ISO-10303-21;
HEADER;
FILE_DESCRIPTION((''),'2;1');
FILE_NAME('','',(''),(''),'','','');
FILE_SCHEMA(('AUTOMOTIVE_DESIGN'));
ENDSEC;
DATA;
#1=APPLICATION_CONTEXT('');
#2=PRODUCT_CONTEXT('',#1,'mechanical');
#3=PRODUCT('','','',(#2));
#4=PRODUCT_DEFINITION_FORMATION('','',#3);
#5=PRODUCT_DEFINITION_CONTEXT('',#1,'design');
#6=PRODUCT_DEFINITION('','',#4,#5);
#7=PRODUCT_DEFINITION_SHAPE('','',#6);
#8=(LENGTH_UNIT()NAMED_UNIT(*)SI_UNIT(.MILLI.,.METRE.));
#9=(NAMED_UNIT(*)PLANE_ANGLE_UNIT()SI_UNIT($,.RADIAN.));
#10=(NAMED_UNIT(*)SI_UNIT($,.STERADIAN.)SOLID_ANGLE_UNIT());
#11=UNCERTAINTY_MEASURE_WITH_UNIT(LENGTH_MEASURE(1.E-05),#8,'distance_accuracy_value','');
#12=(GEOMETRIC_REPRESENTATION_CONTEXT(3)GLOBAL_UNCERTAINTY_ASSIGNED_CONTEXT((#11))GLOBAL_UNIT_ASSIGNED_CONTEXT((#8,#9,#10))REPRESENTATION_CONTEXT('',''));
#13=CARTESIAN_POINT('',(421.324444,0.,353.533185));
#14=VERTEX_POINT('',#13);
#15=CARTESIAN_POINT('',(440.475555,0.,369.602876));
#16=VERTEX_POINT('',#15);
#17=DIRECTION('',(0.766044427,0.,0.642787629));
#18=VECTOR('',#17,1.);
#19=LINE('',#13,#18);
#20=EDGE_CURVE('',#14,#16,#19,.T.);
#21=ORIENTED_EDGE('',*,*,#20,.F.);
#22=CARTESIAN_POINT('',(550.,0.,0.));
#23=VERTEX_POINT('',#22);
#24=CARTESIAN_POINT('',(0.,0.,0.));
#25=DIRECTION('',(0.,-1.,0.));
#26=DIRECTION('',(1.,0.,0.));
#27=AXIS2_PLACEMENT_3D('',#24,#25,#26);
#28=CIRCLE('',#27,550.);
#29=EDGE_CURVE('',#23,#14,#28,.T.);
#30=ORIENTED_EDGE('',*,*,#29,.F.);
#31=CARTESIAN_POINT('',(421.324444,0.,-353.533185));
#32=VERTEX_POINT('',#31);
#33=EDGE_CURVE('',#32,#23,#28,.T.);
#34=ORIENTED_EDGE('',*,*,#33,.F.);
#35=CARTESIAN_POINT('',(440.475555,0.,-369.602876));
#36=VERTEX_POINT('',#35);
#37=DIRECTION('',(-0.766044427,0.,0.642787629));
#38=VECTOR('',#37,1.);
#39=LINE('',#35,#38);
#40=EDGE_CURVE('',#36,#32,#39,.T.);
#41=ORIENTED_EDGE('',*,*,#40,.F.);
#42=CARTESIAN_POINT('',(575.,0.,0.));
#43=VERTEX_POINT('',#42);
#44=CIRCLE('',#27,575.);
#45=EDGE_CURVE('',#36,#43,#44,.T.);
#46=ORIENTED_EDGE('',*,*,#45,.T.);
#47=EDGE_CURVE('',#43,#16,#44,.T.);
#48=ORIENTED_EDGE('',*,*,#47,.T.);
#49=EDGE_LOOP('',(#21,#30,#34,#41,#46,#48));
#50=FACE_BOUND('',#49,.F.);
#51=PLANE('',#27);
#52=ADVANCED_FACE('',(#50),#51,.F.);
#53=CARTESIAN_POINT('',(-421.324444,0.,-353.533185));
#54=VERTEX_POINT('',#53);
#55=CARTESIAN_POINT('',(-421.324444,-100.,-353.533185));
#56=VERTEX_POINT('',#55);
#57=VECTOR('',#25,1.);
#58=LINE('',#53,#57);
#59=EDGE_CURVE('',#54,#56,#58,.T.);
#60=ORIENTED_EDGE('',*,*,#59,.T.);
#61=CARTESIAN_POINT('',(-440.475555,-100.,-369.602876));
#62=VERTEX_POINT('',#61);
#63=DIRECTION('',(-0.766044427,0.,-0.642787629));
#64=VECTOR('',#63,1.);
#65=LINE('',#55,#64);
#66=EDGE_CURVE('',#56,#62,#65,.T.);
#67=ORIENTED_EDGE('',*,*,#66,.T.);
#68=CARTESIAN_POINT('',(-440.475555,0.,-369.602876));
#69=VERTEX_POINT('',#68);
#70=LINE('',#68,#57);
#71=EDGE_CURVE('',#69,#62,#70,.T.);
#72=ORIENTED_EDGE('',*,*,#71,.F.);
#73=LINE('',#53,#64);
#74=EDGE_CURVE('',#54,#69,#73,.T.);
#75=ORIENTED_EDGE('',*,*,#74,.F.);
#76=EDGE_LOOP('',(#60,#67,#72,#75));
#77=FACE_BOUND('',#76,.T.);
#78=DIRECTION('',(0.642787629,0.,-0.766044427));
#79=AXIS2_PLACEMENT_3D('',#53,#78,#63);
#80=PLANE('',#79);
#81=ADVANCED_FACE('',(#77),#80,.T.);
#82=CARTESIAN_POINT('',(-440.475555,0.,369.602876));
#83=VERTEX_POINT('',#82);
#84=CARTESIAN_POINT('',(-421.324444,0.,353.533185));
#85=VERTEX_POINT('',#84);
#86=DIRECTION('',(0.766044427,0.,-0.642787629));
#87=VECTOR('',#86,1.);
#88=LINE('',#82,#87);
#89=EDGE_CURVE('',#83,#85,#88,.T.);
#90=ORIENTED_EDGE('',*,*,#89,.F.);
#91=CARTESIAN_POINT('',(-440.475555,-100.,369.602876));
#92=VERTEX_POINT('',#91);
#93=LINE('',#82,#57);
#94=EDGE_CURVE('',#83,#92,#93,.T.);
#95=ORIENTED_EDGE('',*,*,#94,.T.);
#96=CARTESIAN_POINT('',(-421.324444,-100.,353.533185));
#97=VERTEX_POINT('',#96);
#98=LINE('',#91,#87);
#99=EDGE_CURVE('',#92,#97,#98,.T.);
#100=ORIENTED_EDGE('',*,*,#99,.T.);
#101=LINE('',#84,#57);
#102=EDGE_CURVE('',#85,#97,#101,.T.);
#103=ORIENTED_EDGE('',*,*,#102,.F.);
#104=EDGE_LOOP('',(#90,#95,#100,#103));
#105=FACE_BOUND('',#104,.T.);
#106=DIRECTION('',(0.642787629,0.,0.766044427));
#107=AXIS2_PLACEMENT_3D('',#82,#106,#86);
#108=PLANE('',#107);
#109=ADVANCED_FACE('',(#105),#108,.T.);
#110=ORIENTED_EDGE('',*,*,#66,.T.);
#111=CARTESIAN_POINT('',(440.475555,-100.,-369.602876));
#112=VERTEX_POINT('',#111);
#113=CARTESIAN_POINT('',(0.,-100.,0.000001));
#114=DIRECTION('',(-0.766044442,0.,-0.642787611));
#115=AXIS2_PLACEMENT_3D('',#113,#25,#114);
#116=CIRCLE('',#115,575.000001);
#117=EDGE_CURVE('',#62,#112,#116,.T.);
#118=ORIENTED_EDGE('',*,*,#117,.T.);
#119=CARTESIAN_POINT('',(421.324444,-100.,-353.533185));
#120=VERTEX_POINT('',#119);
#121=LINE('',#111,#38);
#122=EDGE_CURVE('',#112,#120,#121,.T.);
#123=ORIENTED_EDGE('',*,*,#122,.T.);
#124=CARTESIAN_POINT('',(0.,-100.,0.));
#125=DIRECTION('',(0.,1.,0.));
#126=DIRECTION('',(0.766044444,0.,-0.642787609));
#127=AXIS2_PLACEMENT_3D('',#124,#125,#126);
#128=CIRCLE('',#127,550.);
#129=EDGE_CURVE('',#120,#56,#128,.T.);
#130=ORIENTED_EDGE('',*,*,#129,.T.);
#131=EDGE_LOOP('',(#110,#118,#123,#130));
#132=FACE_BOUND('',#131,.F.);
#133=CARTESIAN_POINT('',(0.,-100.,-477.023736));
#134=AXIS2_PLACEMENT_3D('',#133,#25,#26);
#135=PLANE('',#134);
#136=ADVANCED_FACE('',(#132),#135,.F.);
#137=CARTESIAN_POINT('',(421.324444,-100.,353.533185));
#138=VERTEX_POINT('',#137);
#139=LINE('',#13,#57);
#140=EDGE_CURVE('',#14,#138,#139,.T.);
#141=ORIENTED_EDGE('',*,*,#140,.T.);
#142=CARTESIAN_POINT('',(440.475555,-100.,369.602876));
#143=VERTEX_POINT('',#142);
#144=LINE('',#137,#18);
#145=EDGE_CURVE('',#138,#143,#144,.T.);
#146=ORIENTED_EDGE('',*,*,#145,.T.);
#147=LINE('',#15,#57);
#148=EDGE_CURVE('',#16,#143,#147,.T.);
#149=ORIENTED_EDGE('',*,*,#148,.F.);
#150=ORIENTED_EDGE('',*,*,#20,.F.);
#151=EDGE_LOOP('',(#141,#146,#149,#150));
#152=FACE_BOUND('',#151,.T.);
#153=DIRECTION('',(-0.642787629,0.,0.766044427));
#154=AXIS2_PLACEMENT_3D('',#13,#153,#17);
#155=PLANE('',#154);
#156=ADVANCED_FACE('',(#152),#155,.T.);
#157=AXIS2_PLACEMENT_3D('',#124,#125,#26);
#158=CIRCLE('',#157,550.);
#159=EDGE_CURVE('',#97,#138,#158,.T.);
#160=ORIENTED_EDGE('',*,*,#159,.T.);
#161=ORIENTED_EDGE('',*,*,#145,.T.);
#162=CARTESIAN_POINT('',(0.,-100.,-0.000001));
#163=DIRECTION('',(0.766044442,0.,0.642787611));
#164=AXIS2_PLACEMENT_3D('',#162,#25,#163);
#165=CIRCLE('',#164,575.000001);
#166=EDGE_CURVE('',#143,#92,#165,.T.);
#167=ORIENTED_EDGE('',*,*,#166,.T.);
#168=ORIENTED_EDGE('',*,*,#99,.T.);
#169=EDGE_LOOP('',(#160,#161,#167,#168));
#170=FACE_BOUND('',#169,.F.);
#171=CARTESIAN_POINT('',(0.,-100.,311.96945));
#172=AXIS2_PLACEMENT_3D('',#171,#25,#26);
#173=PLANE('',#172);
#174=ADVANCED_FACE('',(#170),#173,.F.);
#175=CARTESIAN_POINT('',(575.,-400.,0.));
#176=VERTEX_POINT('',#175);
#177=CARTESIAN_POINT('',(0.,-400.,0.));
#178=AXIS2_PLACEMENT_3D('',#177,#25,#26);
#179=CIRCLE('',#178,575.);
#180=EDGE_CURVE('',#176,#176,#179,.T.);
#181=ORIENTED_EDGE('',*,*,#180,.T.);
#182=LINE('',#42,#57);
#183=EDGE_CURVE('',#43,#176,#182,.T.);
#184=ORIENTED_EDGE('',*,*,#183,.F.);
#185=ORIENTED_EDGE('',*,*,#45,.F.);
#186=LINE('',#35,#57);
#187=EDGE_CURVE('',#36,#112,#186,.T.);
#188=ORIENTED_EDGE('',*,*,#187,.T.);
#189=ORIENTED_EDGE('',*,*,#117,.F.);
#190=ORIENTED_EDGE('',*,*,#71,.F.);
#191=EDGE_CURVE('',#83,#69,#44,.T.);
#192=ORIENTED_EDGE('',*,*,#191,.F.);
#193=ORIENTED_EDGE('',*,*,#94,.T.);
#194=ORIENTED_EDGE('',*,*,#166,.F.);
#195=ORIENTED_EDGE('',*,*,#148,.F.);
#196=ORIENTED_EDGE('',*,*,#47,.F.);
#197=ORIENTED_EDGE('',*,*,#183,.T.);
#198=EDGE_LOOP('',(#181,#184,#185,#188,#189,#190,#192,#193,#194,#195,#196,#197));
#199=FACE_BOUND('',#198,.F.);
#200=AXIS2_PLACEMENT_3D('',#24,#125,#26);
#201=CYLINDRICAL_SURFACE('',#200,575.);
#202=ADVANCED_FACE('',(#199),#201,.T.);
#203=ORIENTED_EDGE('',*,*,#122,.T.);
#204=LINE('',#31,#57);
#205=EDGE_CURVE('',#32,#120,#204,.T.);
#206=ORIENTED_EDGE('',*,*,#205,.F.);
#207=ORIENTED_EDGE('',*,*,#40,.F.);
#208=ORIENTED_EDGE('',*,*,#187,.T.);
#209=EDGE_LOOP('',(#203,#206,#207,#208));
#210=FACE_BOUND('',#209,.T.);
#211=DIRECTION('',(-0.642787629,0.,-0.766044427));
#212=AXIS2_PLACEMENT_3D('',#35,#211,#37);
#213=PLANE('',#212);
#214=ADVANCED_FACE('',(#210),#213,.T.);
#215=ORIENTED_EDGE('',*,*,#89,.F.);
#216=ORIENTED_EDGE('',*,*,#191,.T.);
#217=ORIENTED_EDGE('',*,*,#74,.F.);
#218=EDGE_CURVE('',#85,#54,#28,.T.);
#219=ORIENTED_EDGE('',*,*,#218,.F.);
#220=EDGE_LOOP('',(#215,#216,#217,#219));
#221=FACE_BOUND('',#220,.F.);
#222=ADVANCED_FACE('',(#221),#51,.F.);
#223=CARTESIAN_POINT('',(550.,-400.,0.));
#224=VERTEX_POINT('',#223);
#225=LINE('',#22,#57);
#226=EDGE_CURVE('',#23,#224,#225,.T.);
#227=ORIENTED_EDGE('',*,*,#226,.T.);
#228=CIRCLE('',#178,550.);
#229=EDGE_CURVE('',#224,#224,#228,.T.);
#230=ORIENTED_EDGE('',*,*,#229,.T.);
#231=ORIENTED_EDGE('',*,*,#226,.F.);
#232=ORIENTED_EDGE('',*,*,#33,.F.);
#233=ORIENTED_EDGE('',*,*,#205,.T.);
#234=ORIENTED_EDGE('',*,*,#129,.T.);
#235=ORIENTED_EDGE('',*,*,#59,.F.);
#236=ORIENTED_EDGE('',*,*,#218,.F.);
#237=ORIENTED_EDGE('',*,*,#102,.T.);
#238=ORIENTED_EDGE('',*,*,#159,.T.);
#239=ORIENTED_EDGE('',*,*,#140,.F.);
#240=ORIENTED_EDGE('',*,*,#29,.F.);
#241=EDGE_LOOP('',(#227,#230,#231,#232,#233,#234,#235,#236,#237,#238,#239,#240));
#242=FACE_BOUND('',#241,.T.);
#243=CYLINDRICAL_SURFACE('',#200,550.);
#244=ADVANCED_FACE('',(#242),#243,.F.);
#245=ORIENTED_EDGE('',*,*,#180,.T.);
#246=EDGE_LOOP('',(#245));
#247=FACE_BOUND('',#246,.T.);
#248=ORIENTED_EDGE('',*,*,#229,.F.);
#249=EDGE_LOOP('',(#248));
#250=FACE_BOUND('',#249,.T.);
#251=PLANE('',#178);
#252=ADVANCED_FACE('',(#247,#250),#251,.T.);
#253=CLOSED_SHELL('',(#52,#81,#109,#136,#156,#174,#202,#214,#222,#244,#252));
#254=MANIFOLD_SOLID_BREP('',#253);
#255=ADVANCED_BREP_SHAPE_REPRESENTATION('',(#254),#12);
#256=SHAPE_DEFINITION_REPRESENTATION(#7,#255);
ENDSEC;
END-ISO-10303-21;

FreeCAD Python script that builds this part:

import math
import FreeCAD as App
import Part
import Sketcher

V = App.Vector
Q = App.Units.Quantity

doc = App.newDocument("Part")
params = doc.addObject("Spreadsheet::Sheet", "Params")
for row, (alias, value) in enumerate([
    ("sketch1_diameter", "1150 mm"),
    ("sketch1_diameter2", "1100 mm"),
    ("pad1_length", "400 mm"),
    ("sketch2_radius", "575.000001 mm"),
    ("sketch2_radius2", "550 mm"),
    ("pocket1_length", "100 mm"),
], start=1):
    params.set(f"A{row}", alias)
    params.set(f"B{row}", "=" + value)
    params.setAlias(f"B{row}", alias)

body = doc.addObject("PartDesign::Body", "Body")

# Sketch on XZ plane
sketch1 = doc.addObject("Sketcher::SketchObject", "Sketch")
body.addObject(sketch1)
sketch1.AttachmentSupport = (doc.XZ_Plane, [""])
sketch1.MapMode = "FlatFace"
sketch1.addGeometry([
    Part.Circle(V(0, 0, 0), V(0, 0, 1), 575),
    Part.Circle(V(0, 0, 0), V(0, 0, 1), 550),
], False)
sketch1.addConstraint([
    Sketcher.Constraint("Coincident", 0, 3, -1, 1),
    Sketcher.Constraint("Coincident", 1, 3, -1, 1),
    Sketcher.Constraint("Diameter", 0, Q("1150 mm")),
    Sketcher.Constraint("Diameter", 1, Q("1100 mm")),
])
sketch1.setExpression("Constraints[2]", "Params.sketch1_diameter")
sketch1.setExpression("Constraints[3]", "Params.sketch1_diameter2")
pad1 = doc.addObject("PartDesign::Pad", "Pad")
body.addObject(pad1)
pad1.Profile = sketch1
pad1.setExpression("Length", "Params.pad1_length")

# Sketch on XZ plane
sketch2 = doc.addObject("Sketcher::SketchObject", "Sketch001")
body.addObject(sketch2)
sketch2.AttachmentSupport = (doc.XZ_Plane, [""])
sketch2.MapMode = "FlatFace"
sketch2.addGeometry([
    Part.LineSegment(V(-421, 354, 0), V(0, 0, 0)),  # 0
    Part.LineSegment(V(0, 0, 0), V(421, 354, 0)),  # 1
    Part.LineSegment(V(421, 354, 0), V(440, 370, 0)),  # 2
    Part.ArcOfCircle(Part.Circle(V(0, 0, 0), V(0, 0, 1), 575), math.radians(40), math.radians(140)),  # 3
    Part.LineSegment(V(-440, 370, 0), V(-421, 354, 0)),  # 4
    Part.ArcOfCircle(Part.Circle(V(0, 0, 0), V(0, 0, 1), 550), math.radians(-140), math.radians(-40)),  # 5
    Part.LineSegment(V(-421, -354, 0), V(-440, -370, 0)),  # 6
    Part.ArcOfCircle(Part.Circle(V(0, 0, 0), V(0, 0, 1), 575), math.radians(-140), math.radians(-40)),  # 7
    Part.LineSegment(V(440, -370, 0), V(421, -354, 0)),  # 8
], False)
sketch2.addConstraint([
    Sketcher.Constraint("Coincident", 0, 2, 1, 1),
    Sketcher.Constraint("Coincident", 1, 2, 2, 1),
    Sketcher.Constraint("Coincident", 2, 2, 3, 1),
    Sketcher.Constraint("Coincident", 3, 2, 4, 1),
    Sketcher.Constraint("Coincident", 4, 2, 0, 1),
    Sketcher.Constraint("Coincident", 5, 1, 6, 1),
    Sketcher.Constraint("Coincident", 6, 2, 7, 1),
    Sketcher.Constraint("Coincident", 7, 2, 8, 1),
    Sketcher.Constraint("Coincident", 8, 2, 5, 2),
    Sketcher.Constraint("Coincident", 3, 3, -1, 1),
    Sketcher.Constraint("Coincident", 5, 3, -1, 1),
    Sketcher.Constraint("Coincident", 7, 3, -1, 1),
    Sketcher.Constraint("Coincident", 0, 2, -1, 1),
    Sketcher.Constraint("Equal", 3, 7),
    Sketcher.Constraint("Symmetric", 1, 2, 5, 1, -1, 1),
    Sketcher.Constraint("Symmetric", 4, 2, 8, 2, -1, 1),
    Sketcher.Constraint("Parallel", 1, 2),
    Sketcher.Constraint("Parallel", 0, 4),
    Sketcher.Constraint("Parallel", 2, 6),
    Sketcher.Constraint("Parallel", 4, 8),
    Sketcher.Constraint("Horizontal", 1, 2, 4, 2),
    Sketcher.Constraint("Radius", 3, Q("575.000001 mm")),
    Sketcher.Constraint("Radius", 5, Q("550 mm")),
    Sketcher.Constraint("Angle", 0, Q("-40 deg")),
])
sketch2.setExpression("Constraints[21]", "Params.sketch2_radius")
sketch2.setExpression("Constraints[22]", "Params.sketch2_radius2")
pocket1 = doc.addObject("PartDesign::Pocket", "Pocket")
body.addObject(pocket1)
pocket1.Profile = sketch2
pocket1.setExpression("Length", "Params.pocket1_length")
pocket1.Reversed = True

doc.recompute()
